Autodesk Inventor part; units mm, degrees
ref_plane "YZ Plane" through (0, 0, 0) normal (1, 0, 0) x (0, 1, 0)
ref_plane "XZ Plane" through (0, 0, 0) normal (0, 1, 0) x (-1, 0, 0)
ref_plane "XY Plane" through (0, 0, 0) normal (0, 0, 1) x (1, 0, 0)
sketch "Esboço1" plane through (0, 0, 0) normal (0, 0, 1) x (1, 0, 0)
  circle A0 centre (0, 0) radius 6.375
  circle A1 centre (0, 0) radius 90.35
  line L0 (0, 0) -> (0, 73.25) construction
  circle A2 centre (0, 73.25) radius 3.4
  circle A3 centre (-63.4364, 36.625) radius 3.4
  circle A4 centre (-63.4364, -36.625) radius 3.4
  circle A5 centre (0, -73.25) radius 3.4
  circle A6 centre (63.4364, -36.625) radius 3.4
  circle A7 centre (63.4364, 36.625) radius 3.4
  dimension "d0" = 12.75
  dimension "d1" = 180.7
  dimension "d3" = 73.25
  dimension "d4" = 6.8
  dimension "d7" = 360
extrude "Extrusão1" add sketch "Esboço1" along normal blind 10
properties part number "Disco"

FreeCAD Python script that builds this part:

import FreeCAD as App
import Part
import Sketcher
Q = App.Units.Quantity

doc = App.newDocument("Part")
body = doc.addObject("PartDesign::Body", "Body")

sketch1 = body.newObject("Sketcher::SketchObject", "Sketch")
sketch1.AttachmentSupport = (doc.getObject("XY_Plane"), [""])
sketch1.MapMode = "FlatFace"
sketch1.addGeometry(Part.Circle(App.Vector(0, 0, 0), App.Vector(0, 0, 1), 90.3), False)
sketch1.addGeometry(Part.Circle(App.Vector(-63.4, -36.6, 0), App.Vector(0, 0, 1), 3.4), False)
sketch1.addGeometry(Part.Circle(App.Vector(0, -73.2, 0), App.Vector(0, 0, 1), 3.4), False)
sketch1.addGeometry(Part.Circle(App.Vector(63.4, -36.6, 0), App.Vector(0, 0, 1), 3.4), False)
sketch1.addGeometry(Part.Circle(App.Vector(-63.4, 36.6, 0), App.Vector(0, 0, 1), 3.4), False)
sketch1.addGeometry(Part.Circle(App.Vector(0, 0, 0), App.Vector(0, 0, 1), 6.4), False)
sketch1.addGeometry(Part.Circle(App.Vector(63.4, 36.6, 0), App.Vector(0, 0, 1), 3.4), False)
sketch1.addGeometry(Part.Circle(App.Vector(0, 73.2, 0), App.Vector(0, 0, 1), 3.4), False)
sketch1.addConstraint(Sketcher.Constraint("Coincident", 0, 3, -1, 1))
sketch1.addConstraint(Sketcher.Constraint("Coincident", 5, 3, -1, 1))
sketch1.addConstraint(Sketcher.Constraint("Equal", 1, 2))
sketch1.addConstraint(Sketcher.Constraint("Equal", 2, 3))
sketch1.addConstraint(Sketcher.Constraint("Equal", 3, 4))
sketch1.addConstraint(Sketcher.Constraint("Equal", 4, 6))
sketch1.addConstraint(Sketcher.Constraint("Equal", 6, 7))
sketch1.addConstraint(Sketcher.Constraint("Symmetric", 3, 3, 4, 3, -1, 1))
sketch1.addConstraint(Sketcher.Constraint("Symmetric", 1, 3, 6, 3, -1, 1))
sketch1.addConstraint(Sketcher.Constraint("Symmetric", 2, 3, 7, 3, -1, 1))
sketch1.addConstraint(Sketcher.Constraint("Symmetric", 1, 3, 3, 3, -2))
sketch1.addConstraint(Sketcher.Constraint("PointOnObject", 2, 3, -2))
sketch1.addConstraint(Sketcher.Constraint("Diameter", 0, Q("180.7 mm")))
sketch1.addConstraint(Sketcher.Constraint("Diameter", 1, Q("6.8 mm")))
sketch1.addConstraint(Sketcher.Constraint("Diameter", 5, Q("12.75 mm")))
sketch1.addConstraint(Sketcher.Constraint("DistanceY", 2, 3, -1, 1, Q("73.25 mm")))
sketch1.addConstraint(Sketcher.Constraint("DistanceY", 1, 3, 4, 3, Q("73.25 mm")))
sketch1.addConstraint(Sketcher.Constraint("DistanceX", 1, 3, -1, 1, Q("63.4364 mm")))
pad1 = body.newObject("PartDesign::Pad", "Pad")
pad1.Profile = sketch1
pad1.Length = 10

doc.recompute()
